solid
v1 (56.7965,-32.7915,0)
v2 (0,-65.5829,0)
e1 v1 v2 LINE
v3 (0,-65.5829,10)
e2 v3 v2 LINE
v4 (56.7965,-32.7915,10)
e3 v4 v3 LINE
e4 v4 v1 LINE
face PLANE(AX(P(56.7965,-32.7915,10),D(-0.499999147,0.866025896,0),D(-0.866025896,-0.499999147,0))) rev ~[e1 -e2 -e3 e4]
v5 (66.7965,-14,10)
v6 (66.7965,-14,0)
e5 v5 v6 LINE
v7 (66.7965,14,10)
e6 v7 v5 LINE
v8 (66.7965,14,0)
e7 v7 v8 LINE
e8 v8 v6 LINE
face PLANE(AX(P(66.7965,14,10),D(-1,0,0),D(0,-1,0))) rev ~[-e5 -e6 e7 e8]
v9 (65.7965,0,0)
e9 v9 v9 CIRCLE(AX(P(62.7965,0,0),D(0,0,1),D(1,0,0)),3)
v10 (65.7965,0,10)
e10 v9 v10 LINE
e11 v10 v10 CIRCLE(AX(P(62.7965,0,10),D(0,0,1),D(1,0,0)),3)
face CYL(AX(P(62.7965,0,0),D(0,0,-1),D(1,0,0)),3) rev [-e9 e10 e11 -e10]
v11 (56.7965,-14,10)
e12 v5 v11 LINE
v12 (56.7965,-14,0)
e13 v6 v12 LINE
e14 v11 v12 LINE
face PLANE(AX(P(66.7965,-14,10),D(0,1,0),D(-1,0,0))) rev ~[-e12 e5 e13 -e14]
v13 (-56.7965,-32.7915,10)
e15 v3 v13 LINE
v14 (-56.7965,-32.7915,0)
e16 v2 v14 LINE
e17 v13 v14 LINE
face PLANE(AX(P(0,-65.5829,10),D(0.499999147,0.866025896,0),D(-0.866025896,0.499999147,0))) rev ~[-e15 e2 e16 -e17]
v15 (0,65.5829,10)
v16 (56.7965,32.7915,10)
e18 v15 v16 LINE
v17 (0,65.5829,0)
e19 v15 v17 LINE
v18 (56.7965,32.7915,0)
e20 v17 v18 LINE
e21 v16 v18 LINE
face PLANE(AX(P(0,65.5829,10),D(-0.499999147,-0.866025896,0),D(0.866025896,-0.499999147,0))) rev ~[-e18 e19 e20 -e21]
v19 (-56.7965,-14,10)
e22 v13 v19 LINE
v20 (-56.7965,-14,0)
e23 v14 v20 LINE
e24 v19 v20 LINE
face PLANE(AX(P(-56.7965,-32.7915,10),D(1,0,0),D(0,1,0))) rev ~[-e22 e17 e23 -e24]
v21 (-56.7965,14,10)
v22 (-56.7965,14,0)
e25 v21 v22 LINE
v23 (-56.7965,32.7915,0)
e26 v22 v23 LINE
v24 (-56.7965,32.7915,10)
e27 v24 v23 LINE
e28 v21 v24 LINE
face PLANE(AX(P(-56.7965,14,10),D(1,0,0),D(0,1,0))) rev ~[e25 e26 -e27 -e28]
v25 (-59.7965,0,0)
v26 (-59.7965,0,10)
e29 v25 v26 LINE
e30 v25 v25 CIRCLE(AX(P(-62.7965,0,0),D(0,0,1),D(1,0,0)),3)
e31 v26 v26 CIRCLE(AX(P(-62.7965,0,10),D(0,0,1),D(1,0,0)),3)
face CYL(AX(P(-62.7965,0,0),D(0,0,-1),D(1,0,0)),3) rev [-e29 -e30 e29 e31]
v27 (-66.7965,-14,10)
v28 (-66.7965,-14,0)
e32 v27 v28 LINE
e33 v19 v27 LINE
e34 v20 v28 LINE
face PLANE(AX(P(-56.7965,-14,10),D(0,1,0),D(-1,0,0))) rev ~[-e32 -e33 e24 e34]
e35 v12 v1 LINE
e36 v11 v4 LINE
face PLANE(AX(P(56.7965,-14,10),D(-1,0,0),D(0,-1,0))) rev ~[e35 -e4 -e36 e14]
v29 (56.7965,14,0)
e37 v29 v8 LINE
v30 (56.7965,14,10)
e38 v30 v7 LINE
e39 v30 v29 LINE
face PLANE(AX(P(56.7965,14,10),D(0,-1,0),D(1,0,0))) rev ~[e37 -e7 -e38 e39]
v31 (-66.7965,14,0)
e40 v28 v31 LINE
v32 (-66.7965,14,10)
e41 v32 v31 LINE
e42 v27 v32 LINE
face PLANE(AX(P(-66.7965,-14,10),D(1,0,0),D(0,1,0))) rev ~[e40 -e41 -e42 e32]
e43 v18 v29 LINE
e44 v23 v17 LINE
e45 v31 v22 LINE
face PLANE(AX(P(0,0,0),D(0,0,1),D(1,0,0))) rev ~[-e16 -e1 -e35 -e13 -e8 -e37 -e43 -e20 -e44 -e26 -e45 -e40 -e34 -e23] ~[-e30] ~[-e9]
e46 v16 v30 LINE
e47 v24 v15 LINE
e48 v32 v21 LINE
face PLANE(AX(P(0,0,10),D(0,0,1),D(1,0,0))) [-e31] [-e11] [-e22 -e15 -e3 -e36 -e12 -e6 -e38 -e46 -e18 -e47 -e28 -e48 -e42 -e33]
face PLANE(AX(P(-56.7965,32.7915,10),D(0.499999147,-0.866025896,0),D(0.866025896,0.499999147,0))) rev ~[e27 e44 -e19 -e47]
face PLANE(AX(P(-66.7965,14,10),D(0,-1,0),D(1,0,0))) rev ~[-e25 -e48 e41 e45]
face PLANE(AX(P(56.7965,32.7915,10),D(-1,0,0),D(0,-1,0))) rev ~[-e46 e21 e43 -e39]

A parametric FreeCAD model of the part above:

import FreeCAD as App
import Part
import Sketcher
Q = App.Units.Quantity

doc = App.newDocument("Part")
body = doc.addObject("PartDesign::Body", "Body")

# Sketch on XY plane
sketch1 = doc.addObject("Sketcher::SketchObject", "Sketch")
body.addObject(sketch1)
sketch1.AttachmentSupport = (doc.XY_Plane, [""])
sketch1.MapMode = "FlatFace"
sketch1.addGeometry([
    Part.LineSegment(App.Vector(57.8, 33.4, 0), App.Vector(0, 66.7, 0)),  # 0
    Part.LineSegment(App.Vector(0, 66.7, 0), App.Vector(-57.8, 33.4, 0)),  # 1
    Part.LineSegment(App.Vector(-57.8, 33.4, 0), App.Vector(-57.8, 15, 0)),  # 2
    Part.LineSegment(App.Vector(-57.8, 15, 0), App.Vector(-67.8, 15, 0)),  # 3
    Part.LineSegment(App.Vector(-67.8, 15, 0), App.Vector(-67.8, -15, 0)),  # 4
    Part.LineSegment(App.Vector(-67.8, -15, 0), App.Vector(-57.8, -15, 0)),  # 5
    Part.LineSegment(App.Vector(-57.8, -15, 0), App.Vector(-57.8, -33.4, 0)),  # 6
    Part.LineSegment(App.Vector(-57.8, -33.4, 0), App.Vector(0, -66.7, 0)),  # 7
    Part.LineSegment(App.Vector(0, -66.7, 0), App.Vector(57.8, -33.4, 0)),  # 8
    Part.LineSegment(App.Vector(57.8, -33.4, 0), App.Vector(57.8, -15, 0)),  # 9
    Part.LineSegment(App.Vector(57.8, -15, 0), App.Vector(67.8, -15, 0)),  # 10
    Part.LineSegment(App.Vector(67.8, -15, 0), App.Vector(67.8, 15, 0)),  # 11
    Part.LineSegment(App.Vector(67.8, 15, 0), App.Vector(57.8, 15, 0)),  # 12
    Part.LineSegment(App.Vector(57.8, 15, 0), App.Vector(57.8, 33.4, 0)),  # 13
    Part.Circle(App.Vector(62.8, 0, 0), App.Vector(0, 0, 1), 3),  # 14
    Part.Circle(App.Vector(-62.8, 0, 0), App.Vector(0, 0, 1), 3),  # 15
], False)
sketch1.addConstraint([
    Sketcher.Constraint("Coincident", 0, 2, 1, 1),
    Sketcher.Constraint("Coincident", 1, 2, 2, 1),
    Sketcher.Constraint("Coincident", 2, 2, 3, 1),
    Sketcher.Constraint("Coincident", 3, 2, 4, 1),
    Sketcher.Constraint("Coincident", 4, 2, 5, 1),
    Sketcher.Constraint("Coincident", 5, 2, 6, 1),
    Sketcher.Constraint("Coincident", 6, 2, 7, 1),
    Sketcher.Constraint("Coincident", 7, 2, 8, 1),
    Sketcher.Constraint("Coincident", 8, 2, 9, 1),
    Sketcher.Constraint("Coincident", 9, 2, 10, 1),
    Sketcher.Constraint("Coincident", 10, 2, 11, 1),
    Sketcher.Constraint("Coincident", 11, 2, 12, 1),
    Sketcher.Constraint("Coincident", 12, 2, 13, 1),
    Sketcher.Constraint("Coincident", 13, 2, 0, 1),
    Sketcher.Constraint("Vertical", 2),
    Sketcher.Constraint("Horizontal", 3),
    Sketcher.Constraint("Vertical", 4),
    Sketcher.Constraint("Horizontal", 5),
    Sketcher.Constraint("Vertical", 6),
    Sketcher.Constraint("Vertical", 9),
    Sketcher.Constraint("Horizontal", 10),
    Sketcher.Constraint("Vertical", 11),
    Sketcher.Constraint("Horizontal", 12),
    Sketcher.Constraint("Vertical", 13),
    Sketcher.Constraint("Equal", 14, 15),
    Sketcher.Constraint("Symmetric", 14, 3, 15, 3, -1, 1),
    Sketcher.Constraint("Symmetric", 0, 2, 7, 2, -1, 1),
    Sketcher.Constraint("Symmetric", 1, 2, 8, 2, -1, 1),
    Sketcher.Constraint("Symmetric", 3, 2, 10, 2, -1, 1),
    Sketcher.Constraint("Symmetric", 5, 2, 12, 2, -1, 1),
    Sketcher.Constraint("Symmetric", 6, 2, 8, 2, -2),
    Sketcher.Constraint("PointOnObject", 14, 3, -1),
    Sketcher.Constraint("PointOnObject", 0, 2, -2),
    Sketcher.Constraint("Parallel", 0, 7),
    Sketcher.Constraint("Horizontal", 5, 2, 9, 2),
    Sketcher.Constraint("Diameter", 14, Q("6 mm")),
    Sketcher.Constraint("DistanceX", 3, 2, 3, 1, Q("10 mm")),
    Sketcher.Constraint("DistanceY", 4, 2, 4, 1, Q("30 mm")),
    Sketcher.Constraint("Angle", 7, Q("-30 deg")),
    Sketcher.Constraint("DistanceX", 15, 3, 1, 2, Q("5 mm")),
    Sketcher.Constraint("DistanceY", 2, 2, 2, 1, Q("18.3688 mm")),
    Sketcher.Constraint("DistanceX", 15, 3, 14, 3, Q("125.593 mm")),
])
pad1 = doc.addObject("PartDesign::Pad", "Pad")
body.addObject(pad1)
pad1.Profile = sketch1
pad1.Length = 10

# Sketch on XY plane
sketch2 = doc.addObject("Sketcher::SketchObject", "Sketch001")
body.addObject(sketch2)
sketch2.AttachmentSupport = (doc.XY_Plane, [""])
sketch2.MapMode = "FlatFace"
sketch2.AttachmentOffset = App.Placement(App.Vector(0, 0, 10), App.Rotation())
sketch2.addGeometry([
    Part.LineSegment(App.Vector(-58, 33, 0), App.Vector(-58, 15, 0)),  # 0
    Part.LineSegment(App.Vector(-58, 15, 0), App.Vector(-68, 15, 0)),  # 1
    Part.LineSegment(App.Vector(-68, 15, 0), App.Vector(-68, -15, 0)),  # 2
    Part.LineSegment(App.Vector(-68, -15, 0), App.Vector(-58, -15, 0)),  # 3
    Part.LineSegment(App.Vector(-58, -15, 0), App.Vector(-58, -33, 0)),  # 4
    Part.LineSegment(App.Vector(-58, -33, 0), App.Vector(0, -67, 0)),  # 5
    Part.LineSegment(App.Vector(0, -67, 0), App.Vector(58, -33, 0)),  # 6
    Part.LineSegment(App.Vector(58, -33, 0), App.Vector(58, -15, 0)),  # 7
    Part.LineSegment(App.Vector(58, -15, 0), App.Vector(68, -15, 0)),  # 8
    Part.LineSegment(App.Vector(68, -15, 0), App.Vector(68, 15, 0)),  # 9
    Part.LineSegment(App.Vector(68, 15, 0), App.Vector(58, 15, 0)),  # 10
    Part.LineSegment(App.Vector(58, 15, 0), App.Vector(58, 33, 0)),  # 11
    Part.LineSegment(App.Vector(58, 33, 0), App.Vector(0, 67, 0)),  # 12
    Part.LineSegment(App.Vector(0, 67, 0), App.Vector(-58, 33, 0)),  # 13
    Part.LineSegment(App.Vector(-57, 14, 0), App.Vector(-57, 33, 0)),  # 14
    Part.LineSegment(App.Vector(-57, 33, 0), App.Vector(0, 66, 0)),  # 15
    Part.LineSegment(App.Vector(0, 66, 0), App.Vector(57, 33, 0)),  # 16
    Part.LineSegment(App.Vector(57, 33, 0), App.Vector(57, 14, 0)),  # 17
    Part.LineSegment(App.Vector(57, 14, 0), App.Vector(67, 14, 0)),  # 18
    Part.LineSegment(App.Vector(67, 14, 0), App.Vector(67, -14, 0)),  # 19
    Part.LineSegment(App.Vector(67, -14, 0), App.Vector(57, -14, 0)),  # 20
    Part.LineSegment(App.Vector(57, -14, 0), App.Vector(57, -33, 0)),  # 21
    Part.LineSegment(App.Vector(57, -33, 0), App.Vector(0, -66, 0)),  # 22
    Part.LineSegment(App.Vector(0, -66, 0), App.Vector(-57, -33, 0)),  # 23
    Part.LineSegment(App.Vector(-57, -33, 0), App.Vector(-57, -14, 0)),  # 24
    Part.LineSegment(App.Vector(-57, -14, 0), App.Vector(-67, -14, 0)),  # 25
    Part.LineSegment(App.Vector(-67, -14, 0), App.Vector(-67, 14, 0)),  # 26
    Part.LineSegment(App.Vector(-67, 14, 0), App.Vector(-57, 14, 0)),  # 27
], False)
sketch2.addConstraint([
    Sketcher.Constraint("Coincident", 0, 2, 1, 1),
    Sketcher.Constraint("Coincident", 1, 2, 2, 1),
    Sketcher.Constraint("Coincident", 2, 2, 3, 1),
    Sketcher.Constraint("Coincident", 3, 2, 4, 1),
    Sketcher.Constraint("Coincident", 4, 2, 5, 1),
    Sketcher.Constraint("Coincident", 5, 2, 6, 1),
    Sketcher.Constraint("Coincident", 6, 2, 7, 1),
    Sketcher.Constraint("Coincident", 7, 2, 8, 1),
    Sketcher.Constraint("Coincident", 8, 2, 9, 1),
    Sketcher.Constraint("Coincident", 9, 2, 10, 1),
    Sketcher.Constraint("Coincident", 10, 2, 11, 1),
    Sketcher.Constraint("Coincident", 11, 2, 12, 1),
    Sketcher.Constraint("Coincident", 12, 2, 13, 1),
    Sketcher.Constraint("Coincident", 13, 2, 0, 1),
    Sketcher.Constraint("Coincident", 14, 2, 15, 1),
    Sketcher.Constraint("Coincident", 15, 2, 16, 1),
    Sketcher.Constraint("Coincident", 16, 2, 17, 1),
    Sketcher.Constraint("Coincident", 17, 2, 18, 1),
    Sketcher.Constraint("Coincident", 18, 2, 19, 1),
    Sketcher.Constraint("Coincident", 19, 2, 20, 1),
    Sketcher.Constraint("Coincident", 20, 2, 21, 1),
    Sketcher.Constraint("Coincident", 21, 2, 22, 1),
    Sketcher.Constraint("Coincident", 22, 2, 23, 1),
    Sketcher.Constraint("Coincident", 23, 2, 24, 1),
    Sketcher.Constraint("Coincident", 24, 2, 25, 1),
    Sketcher.Constraint("Coincident", 25, 2, 26, 1),
    Sketcher.Constraint("Coincident", 26, 2, 27, 1),
    Sketcher.Constraint("Coincident", 27, 2, 14, 1),
    Sketcher.Constraint("Vertical", 0),
    Sketcher.Constraint("Horizontal", 1),
    Sketcher.Constraint("Vertical", 2),
    Sketcher.Constraint("Horizontal", 3),
    Sketcher.Constraint("Vertical", 4),
    Sketcher.Constraint("Vertical", 7),
    Sketcher.Constraint("Horizontal", 8),
    Sketcher.Constraint("Vertical", 9),
    Sketcher.Constraint("Horizontal", 10),
    Sketcher.Constraint("Vertical", 11),
    Sketcher.Constraint("Vertical", 14),
    Sketcher.Constraint("Vertical", 17),
    Sketcher.Constraint("Horizontal", 18),
    Sketcher.Constraint("Vertical", 19),
    Sketcher.Constraint("Horizontal", 20),
    Sketcher.Constraint("Vertical", 21),
    Sketcher.Constraint("Vertical", 24),
    Sketcher.Constraint("Horizontal", 25),
    Sketcher.Constraint("Vertical", 26),
    Sketcher.Constraint("Horizontal", 27),
    Sketcher.Constraint("Symmetric", 0, 2, 7, 2, -1, 1),
    Sketcher.Constraint("Symmetric", 2, 2, 9, 2, -1, 1),
    Sketcher.Constraint("Symmetric", 4, 2, 11, 2, -1, 1),
    Sketcher.Constraint("Symmetric", 5, 2, 12, 2, -1, 1),
    Sketcher.Constraint("Symmetric", 14, 2, 21, 2, -1, 1),
    Sketcher.Constraint("Symmetric", 15, 2, 22, 2, -1, 1),
    Sketcher.Constraint("Symmetric", 16, 2, 23, 2, -1, 1),
    Sketcher.Constraint("Symmetric", 18, 2, 25, 2, -1, 1),
    Sketcher.Constraint("Symmetric", 4, 2, 6, 2, -2),
    Sketcher.Constraint("Symmetric", 14, 2, 16, 2, -2),
    Sketcher.Constraint("PointOnObject", 5, 2, -2),
    Sketcher.Constraint("PointOnObject", 15, 2, -2),
    Sketcher.Constraint("Parallel", 6, 13),
    Sketcher.Constraint("Parallel", 13, 15),
    Sketcher.Constraint("Horizontal", 3, 2, 7, 2),
    Sketcher.Constraint("Horizontal", 20, 2, 24, 2),
    Sketcher.Constraint("Horizontal", 18, 2, 26, 2),
    Sketcher.Constraint("Equal", 10, 18),
    Sketcher.Constraint("DistanceX", 13, 2, 14, 2, Q("1 mm")),
    Sketcher.Constraint("DistanceY", 17, 2, 10, 2, Q("1 mm")),
    Sketcher.Constraint("DistanceX", 1, 2, 1, 1, Q("10 mm")),
    Sketcher.Constraint("DistanceY", 2, 2, 2, 1, Q("30 mm")),
    Sketcher.Constraint("Angle", 5, Q("-30 deg")),
    Sketcher.Constraint("Distance", 15, Q("65.583 mm")),
    Sketcher.Constraint("DistanceY", 0, 2, 0, 1, Q("18.3688 mm")),
    Sketcher.Constraint("DistanceY", 14, 1, 14, 2, Q("18.7915 mm")),
])
pocket1 = doc.addObject("PartDesign::Pocket", "Pocket")
body.addObject(pocket1)
pocket1.Profile = sketch2
pocket1.Type = "ThroughAll"

doc.recompute()
